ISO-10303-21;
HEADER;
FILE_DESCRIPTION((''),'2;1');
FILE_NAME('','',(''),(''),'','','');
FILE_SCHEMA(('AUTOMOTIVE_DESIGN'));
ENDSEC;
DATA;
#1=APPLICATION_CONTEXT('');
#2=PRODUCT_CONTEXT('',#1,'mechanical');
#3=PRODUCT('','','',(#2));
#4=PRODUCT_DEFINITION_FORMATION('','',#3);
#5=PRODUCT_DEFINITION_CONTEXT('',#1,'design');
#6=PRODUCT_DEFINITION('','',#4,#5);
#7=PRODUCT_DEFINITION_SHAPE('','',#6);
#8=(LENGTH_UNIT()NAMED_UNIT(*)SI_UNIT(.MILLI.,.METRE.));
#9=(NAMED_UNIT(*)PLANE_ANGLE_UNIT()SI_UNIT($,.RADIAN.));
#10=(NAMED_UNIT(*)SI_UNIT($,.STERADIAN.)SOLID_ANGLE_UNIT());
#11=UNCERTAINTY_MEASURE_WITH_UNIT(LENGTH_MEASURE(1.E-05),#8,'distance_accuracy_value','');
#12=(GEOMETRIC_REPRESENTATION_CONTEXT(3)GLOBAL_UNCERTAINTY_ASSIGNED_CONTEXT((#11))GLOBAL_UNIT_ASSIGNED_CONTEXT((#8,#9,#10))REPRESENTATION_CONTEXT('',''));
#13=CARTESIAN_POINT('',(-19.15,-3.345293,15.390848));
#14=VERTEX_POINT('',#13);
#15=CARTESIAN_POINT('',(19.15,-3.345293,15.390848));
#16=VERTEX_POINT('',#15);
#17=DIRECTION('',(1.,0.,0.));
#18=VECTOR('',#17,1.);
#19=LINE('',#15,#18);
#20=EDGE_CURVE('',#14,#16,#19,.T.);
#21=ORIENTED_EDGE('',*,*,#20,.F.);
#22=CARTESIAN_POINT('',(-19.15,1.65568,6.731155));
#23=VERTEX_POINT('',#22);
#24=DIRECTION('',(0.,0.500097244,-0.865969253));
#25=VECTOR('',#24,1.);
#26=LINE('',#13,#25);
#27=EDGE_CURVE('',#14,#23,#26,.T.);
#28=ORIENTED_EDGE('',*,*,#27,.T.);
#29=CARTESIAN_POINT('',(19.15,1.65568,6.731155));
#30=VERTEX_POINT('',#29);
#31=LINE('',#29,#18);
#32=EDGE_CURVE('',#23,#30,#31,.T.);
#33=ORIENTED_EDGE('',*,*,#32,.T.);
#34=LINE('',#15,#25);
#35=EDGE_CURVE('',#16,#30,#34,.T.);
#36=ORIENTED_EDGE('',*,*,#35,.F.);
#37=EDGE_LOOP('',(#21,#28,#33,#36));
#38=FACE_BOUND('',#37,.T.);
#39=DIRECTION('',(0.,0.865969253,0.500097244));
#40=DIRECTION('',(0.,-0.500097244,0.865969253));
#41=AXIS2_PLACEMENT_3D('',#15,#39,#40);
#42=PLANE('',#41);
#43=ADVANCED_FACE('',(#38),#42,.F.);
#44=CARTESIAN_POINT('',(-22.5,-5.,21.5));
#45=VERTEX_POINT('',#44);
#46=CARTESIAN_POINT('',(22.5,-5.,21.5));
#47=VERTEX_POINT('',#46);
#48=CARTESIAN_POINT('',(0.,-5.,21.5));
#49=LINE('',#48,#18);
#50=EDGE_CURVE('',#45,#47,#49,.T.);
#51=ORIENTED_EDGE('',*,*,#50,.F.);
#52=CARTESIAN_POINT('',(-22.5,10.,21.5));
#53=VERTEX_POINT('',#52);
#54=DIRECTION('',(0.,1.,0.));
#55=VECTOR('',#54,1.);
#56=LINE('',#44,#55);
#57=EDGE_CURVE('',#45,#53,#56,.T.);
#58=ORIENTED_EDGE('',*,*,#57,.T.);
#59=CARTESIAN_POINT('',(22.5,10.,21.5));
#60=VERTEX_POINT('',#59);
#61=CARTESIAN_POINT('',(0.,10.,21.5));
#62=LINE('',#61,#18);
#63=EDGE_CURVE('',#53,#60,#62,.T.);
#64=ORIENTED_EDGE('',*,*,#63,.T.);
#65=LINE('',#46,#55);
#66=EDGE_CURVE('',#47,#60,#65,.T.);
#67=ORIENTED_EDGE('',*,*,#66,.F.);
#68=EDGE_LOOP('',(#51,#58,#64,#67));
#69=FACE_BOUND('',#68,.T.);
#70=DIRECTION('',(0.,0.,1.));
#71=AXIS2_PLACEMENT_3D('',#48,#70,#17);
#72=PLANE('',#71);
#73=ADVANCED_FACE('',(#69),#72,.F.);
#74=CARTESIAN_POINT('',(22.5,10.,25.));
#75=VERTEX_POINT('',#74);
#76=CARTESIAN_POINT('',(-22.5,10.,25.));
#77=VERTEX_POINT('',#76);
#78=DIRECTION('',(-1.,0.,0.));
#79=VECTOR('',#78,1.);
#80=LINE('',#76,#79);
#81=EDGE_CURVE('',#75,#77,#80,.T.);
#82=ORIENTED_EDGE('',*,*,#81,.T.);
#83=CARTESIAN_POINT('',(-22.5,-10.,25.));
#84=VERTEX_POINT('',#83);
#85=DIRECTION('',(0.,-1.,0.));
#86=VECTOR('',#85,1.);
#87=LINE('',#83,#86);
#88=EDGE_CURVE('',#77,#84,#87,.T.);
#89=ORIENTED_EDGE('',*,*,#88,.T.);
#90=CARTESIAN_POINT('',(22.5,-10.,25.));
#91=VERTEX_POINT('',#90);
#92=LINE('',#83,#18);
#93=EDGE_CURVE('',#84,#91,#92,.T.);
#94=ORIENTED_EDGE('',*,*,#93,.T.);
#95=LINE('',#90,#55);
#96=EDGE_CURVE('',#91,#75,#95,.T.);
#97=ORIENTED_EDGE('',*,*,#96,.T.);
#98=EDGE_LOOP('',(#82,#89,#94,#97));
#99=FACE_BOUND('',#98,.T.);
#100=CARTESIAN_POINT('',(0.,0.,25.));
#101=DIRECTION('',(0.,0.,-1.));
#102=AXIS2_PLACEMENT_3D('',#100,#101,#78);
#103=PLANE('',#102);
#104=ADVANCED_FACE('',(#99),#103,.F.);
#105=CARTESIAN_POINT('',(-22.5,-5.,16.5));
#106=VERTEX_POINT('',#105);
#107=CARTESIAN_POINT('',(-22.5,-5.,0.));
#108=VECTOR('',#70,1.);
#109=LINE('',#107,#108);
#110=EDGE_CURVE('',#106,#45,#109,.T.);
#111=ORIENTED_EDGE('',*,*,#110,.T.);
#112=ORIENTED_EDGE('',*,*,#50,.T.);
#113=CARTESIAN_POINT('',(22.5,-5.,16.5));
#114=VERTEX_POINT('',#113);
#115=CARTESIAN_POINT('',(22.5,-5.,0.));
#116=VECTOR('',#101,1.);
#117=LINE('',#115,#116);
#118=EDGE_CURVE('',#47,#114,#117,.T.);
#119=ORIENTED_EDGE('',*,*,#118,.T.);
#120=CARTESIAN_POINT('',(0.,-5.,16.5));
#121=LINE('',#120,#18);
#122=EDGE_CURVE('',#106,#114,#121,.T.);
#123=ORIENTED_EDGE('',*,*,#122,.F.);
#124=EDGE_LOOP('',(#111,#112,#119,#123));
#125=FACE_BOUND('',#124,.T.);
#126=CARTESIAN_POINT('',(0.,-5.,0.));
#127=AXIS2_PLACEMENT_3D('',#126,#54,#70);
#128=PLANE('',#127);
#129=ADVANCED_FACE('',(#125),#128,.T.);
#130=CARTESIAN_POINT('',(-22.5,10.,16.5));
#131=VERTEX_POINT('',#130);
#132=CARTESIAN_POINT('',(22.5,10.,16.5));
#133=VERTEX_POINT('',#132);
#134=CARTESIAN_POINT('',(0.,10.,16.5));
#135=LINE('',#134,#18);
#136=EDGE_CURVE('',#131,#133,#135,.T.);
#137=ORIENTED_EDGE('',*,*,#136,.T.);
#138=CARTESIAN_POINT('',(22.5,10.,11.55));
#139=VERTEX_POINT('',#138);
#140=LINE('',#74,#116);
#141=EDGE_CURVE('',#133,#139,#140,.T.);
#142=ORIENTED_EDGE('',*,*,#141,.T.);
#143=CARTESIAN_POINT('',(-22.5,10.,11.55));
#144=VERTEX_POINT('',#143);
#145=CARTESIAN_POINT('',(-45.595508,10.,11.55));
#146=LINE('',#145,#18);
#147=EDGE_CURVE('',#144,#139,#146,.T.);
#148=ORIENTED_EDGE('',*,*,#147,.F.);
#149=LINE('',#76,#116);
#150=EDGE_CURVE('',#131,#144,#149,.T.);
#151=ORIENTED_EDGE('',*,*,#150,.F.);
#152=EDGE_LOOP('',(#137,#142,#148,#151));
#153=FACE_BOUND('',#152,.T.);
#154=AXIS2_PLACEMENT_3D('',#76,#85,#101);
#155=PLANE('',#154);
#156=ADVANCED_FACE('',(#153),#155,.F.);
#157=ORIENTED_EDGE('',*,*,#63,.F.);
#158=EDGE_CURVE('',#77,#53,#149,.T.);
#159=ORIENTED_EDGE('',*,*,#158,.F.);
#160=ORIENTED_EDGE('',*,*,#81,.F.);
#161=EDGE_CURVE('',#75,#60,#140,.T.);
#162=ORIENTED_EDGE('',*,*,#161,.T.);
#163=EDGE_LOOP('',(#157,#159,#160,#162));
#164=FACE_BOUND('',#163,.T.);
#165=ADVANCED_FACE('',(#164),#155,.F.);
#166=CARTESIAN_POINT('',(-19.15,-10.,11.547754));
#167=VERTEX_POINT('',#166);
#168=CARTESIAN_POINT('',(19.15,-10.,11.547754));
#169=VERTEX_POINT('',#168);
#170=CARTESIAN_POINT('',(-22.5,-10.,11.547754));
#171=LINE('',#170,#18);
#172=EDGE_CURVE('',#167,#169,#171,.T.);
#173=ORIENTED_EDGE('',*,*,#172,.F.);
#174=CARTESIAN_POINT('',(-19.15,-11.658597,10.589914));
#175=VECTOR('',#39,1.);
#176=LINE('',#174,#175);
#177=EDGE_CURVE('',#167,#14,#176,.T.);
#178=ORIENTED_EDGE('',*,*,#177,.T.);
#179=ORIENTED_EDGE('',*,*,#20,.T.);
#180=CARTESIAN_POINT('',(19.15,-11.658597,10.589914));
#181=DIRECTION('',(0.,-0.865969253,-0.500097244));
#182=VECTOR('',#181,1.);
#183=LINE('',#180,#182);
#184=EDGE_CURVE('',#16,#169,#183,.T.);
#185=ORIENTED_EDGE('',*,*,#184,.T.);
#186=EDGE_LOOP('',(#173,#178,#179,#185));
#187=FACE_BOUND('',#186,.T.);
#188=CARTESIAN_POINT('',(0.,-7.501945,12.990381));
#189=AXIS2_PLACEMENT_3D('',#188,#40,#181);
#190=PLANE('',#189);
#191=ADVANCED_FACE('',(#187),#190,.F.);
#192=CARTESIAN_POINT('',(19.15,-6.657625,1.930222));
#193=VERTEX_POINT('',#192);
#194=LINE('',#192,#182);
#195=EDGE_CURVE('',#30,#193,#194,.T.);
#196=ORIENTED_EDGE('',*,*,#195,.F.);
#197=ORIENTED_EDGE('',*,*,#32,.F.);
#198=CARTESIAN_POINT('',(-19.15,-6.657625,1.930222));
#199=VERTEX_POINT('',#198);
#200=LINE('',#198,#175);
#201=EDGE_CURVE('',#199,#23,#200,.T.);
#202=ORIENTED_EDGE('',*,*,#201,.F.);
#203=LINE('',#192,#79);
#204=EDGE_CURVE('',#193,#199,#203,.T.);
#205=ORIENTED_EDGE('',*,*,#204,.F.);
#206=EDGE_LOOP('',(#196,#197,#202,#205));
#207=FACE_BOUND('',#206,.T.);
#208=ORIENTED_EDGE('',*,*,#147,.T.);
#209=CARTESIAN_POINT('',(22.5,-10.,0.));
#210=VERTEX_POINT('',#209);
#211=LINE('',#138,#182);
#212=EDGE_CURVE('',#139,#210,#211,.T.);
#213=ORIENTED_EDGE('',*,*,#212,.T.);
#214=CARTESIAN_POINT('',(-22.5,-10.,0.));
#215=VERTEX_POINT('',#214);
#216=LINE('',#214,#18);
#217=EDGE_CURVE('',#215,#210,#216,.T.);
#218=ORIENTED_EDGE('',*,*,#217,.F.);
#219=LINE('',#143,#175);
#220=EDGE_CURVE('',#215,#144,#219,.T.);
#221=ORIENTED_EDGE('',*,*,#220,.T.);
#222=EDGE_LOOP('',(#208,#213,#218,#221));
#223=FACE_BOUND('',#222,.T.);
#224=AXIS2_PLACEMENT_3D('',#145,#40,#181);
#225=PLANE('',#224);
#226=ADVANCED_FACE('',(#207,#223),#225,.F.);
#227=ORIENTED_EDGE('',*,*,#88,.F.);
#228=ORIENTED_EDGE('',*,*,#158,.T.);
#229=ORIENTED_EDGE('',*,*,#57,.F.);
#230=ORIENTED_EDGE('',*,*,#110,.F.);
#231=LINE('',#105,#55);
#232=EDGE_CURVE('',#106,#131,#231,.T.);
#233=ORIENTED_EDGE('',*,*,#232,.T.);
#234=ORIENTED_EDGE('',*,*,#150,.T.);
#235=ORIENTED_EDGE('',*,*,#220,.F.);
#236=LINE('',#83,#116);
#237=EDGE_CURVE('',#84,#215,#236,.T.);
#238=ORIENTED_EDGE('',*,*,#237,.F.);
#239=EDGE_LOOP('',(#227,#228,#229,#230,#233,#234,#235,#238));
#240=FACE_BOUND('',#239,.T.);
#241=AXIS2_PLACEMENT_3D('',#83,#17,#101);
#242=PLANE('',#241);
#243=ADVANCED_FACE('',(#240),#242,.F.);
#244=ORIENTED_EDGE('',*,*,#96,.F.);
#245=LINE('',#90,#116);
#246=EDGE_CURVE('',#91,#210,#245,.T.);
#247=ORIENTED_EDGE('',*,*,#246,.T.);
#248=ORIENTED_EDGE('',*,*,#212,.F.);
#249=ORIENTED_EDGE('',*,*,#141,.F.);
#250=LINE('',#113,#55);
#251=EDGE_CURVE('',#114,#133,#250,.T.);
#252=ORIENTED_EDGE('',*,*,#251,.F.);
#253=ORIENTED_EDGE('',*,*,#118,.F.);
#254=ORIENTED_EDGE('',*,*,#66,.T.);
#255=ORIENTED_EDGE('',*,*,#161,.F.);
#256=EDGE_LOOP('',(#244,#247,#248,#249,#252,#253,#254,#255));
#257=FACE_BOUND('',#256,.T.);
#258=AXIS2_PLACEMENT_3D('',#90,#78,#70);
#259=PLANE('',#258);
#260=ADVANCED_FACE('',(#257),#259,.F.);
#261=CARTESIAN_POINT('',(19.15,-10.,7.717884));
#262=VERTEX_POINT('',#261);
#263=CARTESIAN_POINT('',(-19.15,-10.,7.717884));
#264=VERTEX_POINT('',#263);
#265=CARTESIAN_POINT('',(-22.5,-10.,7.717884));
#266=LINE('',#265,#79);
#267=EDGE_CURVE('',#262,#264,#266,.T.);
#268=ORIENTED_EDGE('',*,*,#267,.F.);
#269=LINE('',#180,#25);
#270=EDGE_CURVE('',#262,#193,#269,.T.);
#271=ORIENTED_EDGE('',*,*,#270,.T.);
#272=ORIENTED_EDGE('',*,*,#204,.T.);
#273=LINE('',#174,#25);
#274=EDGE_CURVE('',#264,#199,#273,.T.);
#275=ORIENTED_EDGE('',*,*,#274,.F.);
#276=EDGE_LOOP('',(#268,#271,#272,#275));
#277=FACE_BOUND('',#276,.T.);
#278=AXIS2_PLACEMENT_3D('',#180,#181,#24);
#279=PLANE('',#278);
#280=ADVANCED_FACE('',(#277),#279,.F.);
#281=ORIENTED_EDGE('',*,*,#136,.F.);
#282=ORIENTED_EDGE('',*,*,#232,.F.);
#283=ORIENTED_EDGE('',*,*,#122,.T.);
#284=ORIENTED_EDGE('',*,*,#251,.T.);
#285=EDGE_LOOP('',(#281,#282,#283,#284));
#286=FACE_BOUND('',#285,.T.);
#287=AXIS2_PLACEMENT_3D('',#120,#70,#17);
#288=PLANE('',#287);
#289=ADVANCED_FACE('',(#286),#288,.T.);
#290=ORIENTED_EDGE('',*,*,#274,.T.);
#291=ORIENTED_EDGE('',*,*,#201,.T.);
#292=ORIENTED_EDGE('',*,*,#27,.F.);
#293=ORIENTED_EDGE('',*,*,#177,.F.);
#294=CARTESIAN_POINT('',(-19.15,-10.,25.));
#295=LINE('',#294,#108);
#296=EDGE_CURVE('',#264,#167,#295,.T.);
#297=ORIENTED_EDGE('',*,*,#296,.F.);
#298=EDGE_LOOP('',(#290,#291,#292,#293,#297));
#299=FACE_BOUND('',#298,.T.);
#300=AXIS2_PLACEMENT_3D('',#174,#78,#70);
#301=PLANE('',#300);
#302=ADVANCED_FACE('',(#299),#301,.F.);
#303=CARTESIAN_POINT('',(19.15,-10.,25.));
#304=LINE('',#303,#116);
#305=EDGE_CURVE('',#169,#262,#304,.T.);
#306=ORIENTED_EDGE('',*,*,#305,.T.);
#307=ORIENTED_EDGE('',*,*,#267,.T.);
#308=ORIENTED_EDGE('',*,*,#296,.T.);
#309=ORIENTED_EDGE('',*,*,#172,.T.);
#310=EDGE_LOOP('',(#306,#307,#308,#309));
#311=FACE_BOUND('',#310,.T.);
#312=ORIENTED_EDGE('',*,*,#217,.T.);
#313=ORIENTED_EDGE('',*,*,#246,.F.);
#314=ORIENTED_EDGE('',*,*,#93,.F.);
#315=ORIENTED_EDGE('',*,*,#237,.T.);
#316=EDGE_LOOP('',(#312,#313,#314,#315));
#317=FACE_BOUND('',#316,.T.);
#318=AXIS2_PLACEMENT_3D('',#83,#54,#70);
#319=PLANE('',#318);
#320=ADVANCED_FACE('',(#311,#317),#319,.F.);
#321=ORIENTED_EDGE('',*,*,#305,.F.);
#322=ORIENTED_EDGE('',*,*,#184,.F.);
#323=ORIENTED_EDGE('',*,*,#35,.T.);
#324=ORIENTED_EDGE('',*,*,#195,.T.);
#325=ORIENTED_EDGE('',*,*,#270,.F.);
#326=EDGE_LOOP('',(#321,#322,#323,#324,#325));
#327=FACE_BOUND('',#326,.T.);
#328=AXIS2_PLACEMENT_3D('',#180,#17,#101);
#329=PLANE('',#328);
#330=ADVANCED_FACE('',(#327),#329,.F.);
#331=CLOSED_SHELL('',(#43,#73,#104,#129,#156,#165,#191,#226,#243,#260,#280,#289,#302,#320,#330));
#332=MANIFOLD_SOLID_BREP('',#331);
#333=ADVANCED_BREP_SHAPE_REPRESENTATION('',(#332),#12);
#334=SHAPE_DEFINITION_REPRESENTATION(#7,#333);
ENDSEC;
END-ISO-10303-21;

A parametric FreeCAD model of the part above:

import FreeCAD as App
import Part
import Sketcher
from FreeCAD import Vector

doc = App.newDocument("Part")
body = doc.addObject("PartDesign::Body", "Body")

# Sketch on XY plane
sketch1 = doc.addObject("Sketcher::SketchObject", "Sketch")
body.addObject(sketch1)
sketch1.AttachmentSupport = (doc.XY_Plane, [""])
sketch1.MapMode = "FlatFace"
sketch1.addGeometry(Part.LineSegment(Vector(-22, 10, 0), Vector(-22, -10, 0)), False)
sketch1.addGeometry(Part.LineSegment(Vector(-22, -10, 0), Vector(22, -10, 0)), False)
sketch1.addGeometry(Part.LineSegment(Vector(22, -10, 0), Vector(22, 10, 0)), False)
sketch1.addGeometry(Part.LineSegment(Vector(22, 10, 0), Vector(-22, 10, 0)), False)
sketch1.addConstraint(Sketcher.Constraint("Coincident", 0, 2, 1, 1))
sketch1.addConstraint(Sketcher.Constraint("Coincident", 1, 2, 2, 1))
sketch1.addConstraint(Sketcher.Constraint("Coincident", 2, 2, 3, 1))
sketch1.addConstraint(Sketcher.Constraint("Coincident", 3, 2, 0, 1))
sketch1.addConstraint(Sketcher.Constraint("Vertical", 0))
sketch1.addConstraint(Sketcher.Constraint("Horizontal", 1))
sketch1.addConstraint(Sketcher.Constraint("Vertical", 2))
sketch1.addConstraint(Sketcher.Constraint("Horizontal", 3))
sketch1.addConstraint(Sketcher.Constraint("Symmetric", 0, 2, 2, 2, -1, 1))
sketch1.addConstraint(Sketcher.Constraint("DistanceX", 1, 1, 1, 2, 45.0))
sketch1.addConstraint(Sketcher.Constraint("DistanceY", 0, 2, 0, 1, 20.0))
pad1 = doc.addObject("PartDesign::Pad", "Pad")
body.addObject(pad1)
pad1.Profile = sketch1
pad1.Length = 25

# Sketch on XZ plane
sketch2 = doc.addObject("Sketcher::SketchObject", "Sketch001")
body.addObject(sketch2)
sketch2.AttachmentSupport = (doc.XZ_Plane, [""])
sketch2.MapMode = "FlatFace"
sketch2.AttachmentOffset = App.Placement(Vector(0, 0, -10), App.Rotation())
sketch2.addGeometry(Part.LineSegment(Vector(-22, 16, 0), Vector(-22, 22, 0)), False)
sketch2.addGeometry(Part.LineSegment(Vector(-22, 22, 0), Vector(22, 22, 0)), False)
sketch2.addGeometry(Part.LineSegment(Vector(22, 22, 0), Vector(22, 16, 0)), False)
sketch2.addGeometry(Part.LineSegment(Vector(22, 16, 0), Vector(-22, 16, 0)), False)
sketch2.addConstraint(Sketcher.Constraint("Coincident", 0, 2, 1, 1))
sketch2.addConstraint(Sketcher.Constraint("Coincident", 1, 2, 2, 1))
sketch2.addConstraint(Sketcher.Constraint("Coincident", 2, 2, 3, 1))
sketch2.addConstraint(Sketcher.Constraint("Coincident", 3, 2, 0, 1))
sketch2.addConstraint(Sketcher.Constraint("Vertical", 0))
sketch2.addConstraint(Sketcher.Constraint("Horizontal", 1))
sketch2.addConstraint(Sketcher.Constraint("Vertical", 2))
sketch2.addConstraint(Sketcher.Constraint("Horizontal", 3))
sketch2.addConstraint(Sketcher.Constraint("DistanceX", 1, 1, 1, 2, 45.0))
sketch2.addConstraint(Sketcher.Constraint("DistanceY", 0, 1, 0, 2, 5.0))
sketch2.addConstraint(Sketcher.Constraint("DistanceX", 0, 2, -1, 1, 22.5))
sketch2.addConstraint(Sketcher.Constraint("DistanceY", -1, 1, 0, 2, 21.5))
pocket1 = doc.addObject("PartDesign::Pocket", "Pocket")
body.addObject(pocket1)
pocket1.Profile = sketch2
pocket1.Length = 15
pocket1.Reversed = True

# Sketch on YZ plane
sketch3 = doc.addObject("Sketcher::SketchObject", "Sketch002")
body.addObject(sketch3)
sketch3.AttachmentSupport = (doc.YZ_Plane, [""])
sketch3.MapMode = "FlatFace"
sketch3.AttachmentOffset = App.Placement(Vector(0, 0, 22.5), App.Rotation())
sketch3.addGeometry(Part.LineSegment(Vector(-10, 0, 0), Vector(10, 0, 0)), False)
sketch3.addGeometry(Part.LineSegment(Vector(10, 0, 0), Vector(10, 12, 0)), False)
sketch3.addGeometry(Part.LineSegment(Vector(10, 12, 0), Vector(-10, 0, 0)), False)
sketch3.addConstraint(Sketcher.Constraint("Coincident", 0, 2, 1, 1))
sketch3.addConstraint(Sketcher.Constraint("Coincident", 1, 2, 2, 1))
sketch3.addConstraint(Sketcher.Constraint("Coincident", 2, 2, 0, 1))
sketch3.addConstraint(Sketcher.Constraint("Horizontal", 0))
sketch3.addConstraint(Sketcher.Constraint("Vertical", 1))
sketch3.addConstraint(Sketcher.Constraint("Symmetric", 0, 2, 2, 2, -1, 1))
sketch3.addConstraint(Sketcher.Constraint("DistanceX", 0, 1, 0, 2, 20.0))
sketch3.addConstraint(Sketcher.Constraint("DistanceY", 1, 1, 1, 2, 11.55))
pocket2 = doc.addObject("PartDesign::Pocket", "Pocket001")
body.addObject(pocket2)
pocket2.Profile = sketch3
pocket2.Length = 45

# Sketch on an angled plane
sketch4 = doc.addObject("Sketcher::SketchObject", "Sketch003")
body.addObject(sketch4)
sketch4.Placement = App.Placement(Vector(0, -2.500973, 4.330688), App.Rotation(Vector(-1, 0, 0), Vector(0, 0.865969253, 0.500097244), Vector(0, 0.500097244, -0.865969253), "ZXY"))
sketch4.addGeometry(Part.LineSegment(Vector(-19, 5, 0), Vector(-19, -5, 0)), False)
sketch4.addGeometry(Part.LineSegment(Vector(-19, -5, 0), Vector(19, -5, 0)), False)
sketch4.addGeometry(Part.LineSegment(Vector(19, -5, 0), Vector(19, 5, 0)), False)
sketch4.addGeometry(Part.LineSegment(Vector(19, 5, 0), Vector(-19, 5, 0)), False)
sketch4.addConstraint(Sketcher.Constraint("Coincident", 0, 2, 1, 1))
sketch4.addConstraint(Sketcher.Constraint("Coincident", 1, 2, 2, 1))
sketch4.addConstraint(Sketcher.Constraint("Coincident", 2, 2, 3, 1))
sketch4.addConstraint(Sketcher.Constraint("Coincident", 3, 2, 0, 1))
sketch4.addConstraint(Sketcher.Constraint("Vertical", 0))
sketch4.addConstraint(Sketcher.Constraint("Horizontal", 1))
sketch4.addConstraint(Sketcher.Constraint("Vertical", 2))
sketch4.addConstraint(Sketcher.Constraint("Horizontal", 3))
sketch4.addConstraint(Sketcher.Constraint("Symmetric", 0, 2, 2, 2, -1, 1))
sketch4.addConstraint(Sketcher.Constraint("DistanceX", 1, 1, 1, 2, 38.3))
sketch4.addConstraint(Sketcher.Constraint("DistanceY", 0, 2, 0, 1, 9.6))
pocket3 = doc.addObject("PartDesign::Pocket", "Pocket002")
body.addObject(pocket3)
pocket3.Profile = sketch4
pocket3.Length = 10

doc.recompute()
